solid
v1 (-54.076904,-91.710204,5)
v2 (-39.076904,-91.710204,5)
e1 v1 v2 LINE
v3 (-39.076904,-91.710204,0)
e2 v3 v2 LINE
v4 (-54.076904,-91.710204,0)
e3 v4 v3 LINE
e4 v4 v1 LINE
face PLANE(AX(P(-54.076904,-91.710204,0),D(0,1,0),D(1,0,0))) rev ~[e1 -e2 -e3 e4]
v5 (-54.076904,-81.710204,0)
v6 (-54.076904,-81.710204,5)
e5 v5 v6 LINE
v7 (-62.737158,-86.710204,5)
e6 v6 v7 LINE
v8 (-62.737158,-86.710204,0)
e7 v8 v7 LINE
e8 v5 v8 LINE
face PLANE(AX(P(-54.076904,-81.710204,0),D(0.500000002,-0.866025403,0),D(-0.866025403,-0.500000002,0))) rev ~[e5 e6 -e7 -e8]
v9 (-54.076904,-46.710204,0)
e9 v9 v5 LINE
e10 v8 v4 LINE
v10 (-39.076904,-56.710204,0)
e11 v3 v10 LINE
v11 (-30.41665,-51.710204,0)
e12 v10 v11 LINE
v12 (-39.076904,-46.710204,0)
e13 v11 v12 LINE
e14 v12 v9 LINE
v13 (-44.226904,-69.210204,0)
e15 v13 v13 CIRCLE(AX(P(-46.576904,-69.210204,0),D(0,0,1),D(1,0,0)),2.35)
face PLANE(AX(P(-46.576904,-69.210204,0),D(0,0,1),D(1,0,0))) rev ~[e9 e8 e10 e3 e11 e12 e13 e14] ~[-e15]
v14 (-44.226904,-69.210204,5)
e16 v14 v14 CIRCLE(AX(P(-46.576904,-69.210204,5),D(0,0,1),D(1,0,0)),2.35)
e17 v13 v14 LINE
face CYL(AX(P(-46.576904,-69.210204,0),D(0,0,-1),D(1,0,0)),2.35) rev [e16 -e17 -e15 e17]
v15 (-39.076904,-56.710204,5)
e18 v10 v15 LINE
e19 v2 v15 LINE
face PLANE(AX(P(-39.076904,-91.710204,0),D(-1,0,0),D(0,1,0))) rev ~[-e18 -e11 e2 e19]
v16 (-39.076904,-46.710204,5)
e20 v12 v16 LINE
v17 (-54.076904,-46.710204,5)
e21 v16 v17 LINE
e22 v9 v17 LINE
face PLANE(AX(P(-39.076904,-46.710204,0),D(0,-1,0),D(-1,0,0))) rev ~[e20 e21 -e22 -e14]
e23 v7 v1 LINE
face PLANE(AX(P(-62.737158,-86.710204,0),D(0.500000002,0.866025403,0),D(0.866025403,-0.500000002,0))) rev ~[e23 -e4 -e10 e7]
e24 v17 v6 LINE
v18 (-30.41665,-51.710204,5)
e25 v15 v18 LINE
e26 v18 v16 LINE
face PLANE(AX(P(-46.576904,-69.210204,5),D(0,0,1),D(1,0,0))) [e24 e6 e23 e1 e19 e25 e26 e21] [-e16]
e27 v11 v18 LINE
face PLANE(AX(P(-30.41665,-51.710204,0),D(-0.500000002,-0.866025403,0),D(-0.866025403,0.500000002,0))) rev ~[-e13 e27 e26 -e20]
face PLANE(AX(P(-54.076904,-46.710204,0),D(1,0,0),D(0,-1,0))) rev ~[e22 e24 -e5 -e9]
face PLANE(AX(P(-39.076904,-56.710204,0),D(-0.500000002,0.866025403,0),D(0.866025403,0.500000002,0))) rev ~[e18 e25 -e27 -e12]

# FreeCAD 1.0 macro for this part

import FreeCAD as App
import Part
import Sketcher
from FreeCAD import Vector
Q = App.Units.Quantity

doc = App.newDocument("Part")
body = doc.addObject("PartDesign::Body", "Body")

sketch1 = body.newObject("Sketcher::SketchObject", "Sketch")
sketch1.AttachmentSupport = (doc.getObject("XY_Plane"), [""])
sketch1.MapMode = "FlatFace"
sketch1.addGeometry(Part.LineSegment(Vector(-39.1, -46.7, 0), Vector(-54.1, -46.7, 0)), False)
sketch1.addGeometry(Part.LineSegment(Vector(-54.1, -46.7, 0), Vector(-54.1, -81.7, 0)), False)
sketch1.addGeometry(Part.LineSegment(Vector(-54.1, -81.7, 0), Vector(-62.7, -86.7, 0)), False)
sketch1.addGeometry(Part.LineSegment(Vector(-62.7, -86.7, 0), Vector(-54.1, -91.7, 0)), False)
sketch1.addGeometry(Part.LineSegment(Vector(-54.1, -91.7, 0), Vector(-39.1, -91.7, 0)), False)
sketch1.addGeometry(Part.LineSegment(Vector(-39.1, -91.7, 0), Vector(-39.1, -56.7, 0)), False)
sketch1.addGeometry(Part.LineSegment(Vector(-39.1, -56.7, 0), Vector(-30.4, -51.7, 0)), False)
sketch1.addGeometry(Part.LineSegment(Vector(-30.4, -51.7, 0), Vector(-39.1, -46.7, 0)), False)
sketch1.addGeometry(Part.Circle(Vector(-46.6, -69.2, 0), Vector(0, 0, 1), 2.4), False)
sketch1.addConstraint(Sketcher.Constraint("Coincident", 0, 2, 1, 1))
sketch1.addConstraint(Sketcher.Constraint("Coincident", 1, 2, 2, 1))
sketch1.addConstraint(Sketcher.Constraint("Coincident", 2, 2, 3, 1))
sketch1.addConstraint(Sketcher.Constraint("Coincident", 3, 2, 4, 1))
sketch1.addConstraint(Sketcher.Constraint("Coincident", 4, 2, 5, 1))
sketch1.addConstraint(Sketcher.Constraint("Coincident", 5, 2, 6, 1))
sketch1.addConstraint(Sketcher.Constraint("Coincident", 6, 2, 7, 1))
sketch1.addConstraint(Sketcher.Constraint("Coincident", 7, 2, 0, 1))
sketch1.addConstraint(Sketcher.Constraint("Horizontal", 0))
sketch1.addConstraint(Sketcher.Constraint("Vertical", 1))
sketch1.addConstraint(Sketcher.Constraint("Horizontal", 4))
sketch1.addConstraint(Sketcher.Constraint("Vertical", 5))
sketch1.addConstraint(Sketcher.Constraint("Parallel", 2, 6))
sketch1.addConstraint(Sketcher.Constraint("Parallel", 3, 7))
sketch1.addConstraint(Sketcher.Constraint("Vertical", 1, 2, 3, 2))
sketch1.addConstraint(Sketcher.Constraint("Vertical", 5, 2, 7, 2))
sketch1.addConstraint(Sketcher.Constraint("Equal", 1, 5))
sketch1.addConstraint(Sketcher.Constraint("Equal", 2, 3))
sketch1.addConstraint(Sketcher.Constraint("Diameter", 8, 4.7))
sketch1.addConstraint(Sketcher.Constraint("DistanceX", 0, 2, 0, 1, 15.0))
sketch1.addConstraint(Sketcher.Constraint("DistanceY", 1, 2, 1, 1, 35.0))
sketch1.addConstraint(Sketcher.Constraint("Angle", 2, Q("-150 deg")))
sketch1.addConstraint(Sketcher.Constraint("Distance", 2, 10.0))
sketch1.addConstraint(Sketcher.Constraint("DistanceX", 0, 2, 8, 3, 7.5))
sketch1.addConstraint(Sketcher.Constraint("DistanceY", 8, 3, 0, 2, 22.5))
sketch1.addConstraint(Sketcher.Constraint("DistanceX", 6, 2, -1, 1, 30.41665))
sketch1.addConstraint(Sketcher.Constraint("DistanceY", 8, 3, -1, 1, 69.210204))
pad1 = body.newObject("PartDesign::Pad", "Pad")
pad1.Profile = sketch1
pad1.Length = 5

doc.recompute()
